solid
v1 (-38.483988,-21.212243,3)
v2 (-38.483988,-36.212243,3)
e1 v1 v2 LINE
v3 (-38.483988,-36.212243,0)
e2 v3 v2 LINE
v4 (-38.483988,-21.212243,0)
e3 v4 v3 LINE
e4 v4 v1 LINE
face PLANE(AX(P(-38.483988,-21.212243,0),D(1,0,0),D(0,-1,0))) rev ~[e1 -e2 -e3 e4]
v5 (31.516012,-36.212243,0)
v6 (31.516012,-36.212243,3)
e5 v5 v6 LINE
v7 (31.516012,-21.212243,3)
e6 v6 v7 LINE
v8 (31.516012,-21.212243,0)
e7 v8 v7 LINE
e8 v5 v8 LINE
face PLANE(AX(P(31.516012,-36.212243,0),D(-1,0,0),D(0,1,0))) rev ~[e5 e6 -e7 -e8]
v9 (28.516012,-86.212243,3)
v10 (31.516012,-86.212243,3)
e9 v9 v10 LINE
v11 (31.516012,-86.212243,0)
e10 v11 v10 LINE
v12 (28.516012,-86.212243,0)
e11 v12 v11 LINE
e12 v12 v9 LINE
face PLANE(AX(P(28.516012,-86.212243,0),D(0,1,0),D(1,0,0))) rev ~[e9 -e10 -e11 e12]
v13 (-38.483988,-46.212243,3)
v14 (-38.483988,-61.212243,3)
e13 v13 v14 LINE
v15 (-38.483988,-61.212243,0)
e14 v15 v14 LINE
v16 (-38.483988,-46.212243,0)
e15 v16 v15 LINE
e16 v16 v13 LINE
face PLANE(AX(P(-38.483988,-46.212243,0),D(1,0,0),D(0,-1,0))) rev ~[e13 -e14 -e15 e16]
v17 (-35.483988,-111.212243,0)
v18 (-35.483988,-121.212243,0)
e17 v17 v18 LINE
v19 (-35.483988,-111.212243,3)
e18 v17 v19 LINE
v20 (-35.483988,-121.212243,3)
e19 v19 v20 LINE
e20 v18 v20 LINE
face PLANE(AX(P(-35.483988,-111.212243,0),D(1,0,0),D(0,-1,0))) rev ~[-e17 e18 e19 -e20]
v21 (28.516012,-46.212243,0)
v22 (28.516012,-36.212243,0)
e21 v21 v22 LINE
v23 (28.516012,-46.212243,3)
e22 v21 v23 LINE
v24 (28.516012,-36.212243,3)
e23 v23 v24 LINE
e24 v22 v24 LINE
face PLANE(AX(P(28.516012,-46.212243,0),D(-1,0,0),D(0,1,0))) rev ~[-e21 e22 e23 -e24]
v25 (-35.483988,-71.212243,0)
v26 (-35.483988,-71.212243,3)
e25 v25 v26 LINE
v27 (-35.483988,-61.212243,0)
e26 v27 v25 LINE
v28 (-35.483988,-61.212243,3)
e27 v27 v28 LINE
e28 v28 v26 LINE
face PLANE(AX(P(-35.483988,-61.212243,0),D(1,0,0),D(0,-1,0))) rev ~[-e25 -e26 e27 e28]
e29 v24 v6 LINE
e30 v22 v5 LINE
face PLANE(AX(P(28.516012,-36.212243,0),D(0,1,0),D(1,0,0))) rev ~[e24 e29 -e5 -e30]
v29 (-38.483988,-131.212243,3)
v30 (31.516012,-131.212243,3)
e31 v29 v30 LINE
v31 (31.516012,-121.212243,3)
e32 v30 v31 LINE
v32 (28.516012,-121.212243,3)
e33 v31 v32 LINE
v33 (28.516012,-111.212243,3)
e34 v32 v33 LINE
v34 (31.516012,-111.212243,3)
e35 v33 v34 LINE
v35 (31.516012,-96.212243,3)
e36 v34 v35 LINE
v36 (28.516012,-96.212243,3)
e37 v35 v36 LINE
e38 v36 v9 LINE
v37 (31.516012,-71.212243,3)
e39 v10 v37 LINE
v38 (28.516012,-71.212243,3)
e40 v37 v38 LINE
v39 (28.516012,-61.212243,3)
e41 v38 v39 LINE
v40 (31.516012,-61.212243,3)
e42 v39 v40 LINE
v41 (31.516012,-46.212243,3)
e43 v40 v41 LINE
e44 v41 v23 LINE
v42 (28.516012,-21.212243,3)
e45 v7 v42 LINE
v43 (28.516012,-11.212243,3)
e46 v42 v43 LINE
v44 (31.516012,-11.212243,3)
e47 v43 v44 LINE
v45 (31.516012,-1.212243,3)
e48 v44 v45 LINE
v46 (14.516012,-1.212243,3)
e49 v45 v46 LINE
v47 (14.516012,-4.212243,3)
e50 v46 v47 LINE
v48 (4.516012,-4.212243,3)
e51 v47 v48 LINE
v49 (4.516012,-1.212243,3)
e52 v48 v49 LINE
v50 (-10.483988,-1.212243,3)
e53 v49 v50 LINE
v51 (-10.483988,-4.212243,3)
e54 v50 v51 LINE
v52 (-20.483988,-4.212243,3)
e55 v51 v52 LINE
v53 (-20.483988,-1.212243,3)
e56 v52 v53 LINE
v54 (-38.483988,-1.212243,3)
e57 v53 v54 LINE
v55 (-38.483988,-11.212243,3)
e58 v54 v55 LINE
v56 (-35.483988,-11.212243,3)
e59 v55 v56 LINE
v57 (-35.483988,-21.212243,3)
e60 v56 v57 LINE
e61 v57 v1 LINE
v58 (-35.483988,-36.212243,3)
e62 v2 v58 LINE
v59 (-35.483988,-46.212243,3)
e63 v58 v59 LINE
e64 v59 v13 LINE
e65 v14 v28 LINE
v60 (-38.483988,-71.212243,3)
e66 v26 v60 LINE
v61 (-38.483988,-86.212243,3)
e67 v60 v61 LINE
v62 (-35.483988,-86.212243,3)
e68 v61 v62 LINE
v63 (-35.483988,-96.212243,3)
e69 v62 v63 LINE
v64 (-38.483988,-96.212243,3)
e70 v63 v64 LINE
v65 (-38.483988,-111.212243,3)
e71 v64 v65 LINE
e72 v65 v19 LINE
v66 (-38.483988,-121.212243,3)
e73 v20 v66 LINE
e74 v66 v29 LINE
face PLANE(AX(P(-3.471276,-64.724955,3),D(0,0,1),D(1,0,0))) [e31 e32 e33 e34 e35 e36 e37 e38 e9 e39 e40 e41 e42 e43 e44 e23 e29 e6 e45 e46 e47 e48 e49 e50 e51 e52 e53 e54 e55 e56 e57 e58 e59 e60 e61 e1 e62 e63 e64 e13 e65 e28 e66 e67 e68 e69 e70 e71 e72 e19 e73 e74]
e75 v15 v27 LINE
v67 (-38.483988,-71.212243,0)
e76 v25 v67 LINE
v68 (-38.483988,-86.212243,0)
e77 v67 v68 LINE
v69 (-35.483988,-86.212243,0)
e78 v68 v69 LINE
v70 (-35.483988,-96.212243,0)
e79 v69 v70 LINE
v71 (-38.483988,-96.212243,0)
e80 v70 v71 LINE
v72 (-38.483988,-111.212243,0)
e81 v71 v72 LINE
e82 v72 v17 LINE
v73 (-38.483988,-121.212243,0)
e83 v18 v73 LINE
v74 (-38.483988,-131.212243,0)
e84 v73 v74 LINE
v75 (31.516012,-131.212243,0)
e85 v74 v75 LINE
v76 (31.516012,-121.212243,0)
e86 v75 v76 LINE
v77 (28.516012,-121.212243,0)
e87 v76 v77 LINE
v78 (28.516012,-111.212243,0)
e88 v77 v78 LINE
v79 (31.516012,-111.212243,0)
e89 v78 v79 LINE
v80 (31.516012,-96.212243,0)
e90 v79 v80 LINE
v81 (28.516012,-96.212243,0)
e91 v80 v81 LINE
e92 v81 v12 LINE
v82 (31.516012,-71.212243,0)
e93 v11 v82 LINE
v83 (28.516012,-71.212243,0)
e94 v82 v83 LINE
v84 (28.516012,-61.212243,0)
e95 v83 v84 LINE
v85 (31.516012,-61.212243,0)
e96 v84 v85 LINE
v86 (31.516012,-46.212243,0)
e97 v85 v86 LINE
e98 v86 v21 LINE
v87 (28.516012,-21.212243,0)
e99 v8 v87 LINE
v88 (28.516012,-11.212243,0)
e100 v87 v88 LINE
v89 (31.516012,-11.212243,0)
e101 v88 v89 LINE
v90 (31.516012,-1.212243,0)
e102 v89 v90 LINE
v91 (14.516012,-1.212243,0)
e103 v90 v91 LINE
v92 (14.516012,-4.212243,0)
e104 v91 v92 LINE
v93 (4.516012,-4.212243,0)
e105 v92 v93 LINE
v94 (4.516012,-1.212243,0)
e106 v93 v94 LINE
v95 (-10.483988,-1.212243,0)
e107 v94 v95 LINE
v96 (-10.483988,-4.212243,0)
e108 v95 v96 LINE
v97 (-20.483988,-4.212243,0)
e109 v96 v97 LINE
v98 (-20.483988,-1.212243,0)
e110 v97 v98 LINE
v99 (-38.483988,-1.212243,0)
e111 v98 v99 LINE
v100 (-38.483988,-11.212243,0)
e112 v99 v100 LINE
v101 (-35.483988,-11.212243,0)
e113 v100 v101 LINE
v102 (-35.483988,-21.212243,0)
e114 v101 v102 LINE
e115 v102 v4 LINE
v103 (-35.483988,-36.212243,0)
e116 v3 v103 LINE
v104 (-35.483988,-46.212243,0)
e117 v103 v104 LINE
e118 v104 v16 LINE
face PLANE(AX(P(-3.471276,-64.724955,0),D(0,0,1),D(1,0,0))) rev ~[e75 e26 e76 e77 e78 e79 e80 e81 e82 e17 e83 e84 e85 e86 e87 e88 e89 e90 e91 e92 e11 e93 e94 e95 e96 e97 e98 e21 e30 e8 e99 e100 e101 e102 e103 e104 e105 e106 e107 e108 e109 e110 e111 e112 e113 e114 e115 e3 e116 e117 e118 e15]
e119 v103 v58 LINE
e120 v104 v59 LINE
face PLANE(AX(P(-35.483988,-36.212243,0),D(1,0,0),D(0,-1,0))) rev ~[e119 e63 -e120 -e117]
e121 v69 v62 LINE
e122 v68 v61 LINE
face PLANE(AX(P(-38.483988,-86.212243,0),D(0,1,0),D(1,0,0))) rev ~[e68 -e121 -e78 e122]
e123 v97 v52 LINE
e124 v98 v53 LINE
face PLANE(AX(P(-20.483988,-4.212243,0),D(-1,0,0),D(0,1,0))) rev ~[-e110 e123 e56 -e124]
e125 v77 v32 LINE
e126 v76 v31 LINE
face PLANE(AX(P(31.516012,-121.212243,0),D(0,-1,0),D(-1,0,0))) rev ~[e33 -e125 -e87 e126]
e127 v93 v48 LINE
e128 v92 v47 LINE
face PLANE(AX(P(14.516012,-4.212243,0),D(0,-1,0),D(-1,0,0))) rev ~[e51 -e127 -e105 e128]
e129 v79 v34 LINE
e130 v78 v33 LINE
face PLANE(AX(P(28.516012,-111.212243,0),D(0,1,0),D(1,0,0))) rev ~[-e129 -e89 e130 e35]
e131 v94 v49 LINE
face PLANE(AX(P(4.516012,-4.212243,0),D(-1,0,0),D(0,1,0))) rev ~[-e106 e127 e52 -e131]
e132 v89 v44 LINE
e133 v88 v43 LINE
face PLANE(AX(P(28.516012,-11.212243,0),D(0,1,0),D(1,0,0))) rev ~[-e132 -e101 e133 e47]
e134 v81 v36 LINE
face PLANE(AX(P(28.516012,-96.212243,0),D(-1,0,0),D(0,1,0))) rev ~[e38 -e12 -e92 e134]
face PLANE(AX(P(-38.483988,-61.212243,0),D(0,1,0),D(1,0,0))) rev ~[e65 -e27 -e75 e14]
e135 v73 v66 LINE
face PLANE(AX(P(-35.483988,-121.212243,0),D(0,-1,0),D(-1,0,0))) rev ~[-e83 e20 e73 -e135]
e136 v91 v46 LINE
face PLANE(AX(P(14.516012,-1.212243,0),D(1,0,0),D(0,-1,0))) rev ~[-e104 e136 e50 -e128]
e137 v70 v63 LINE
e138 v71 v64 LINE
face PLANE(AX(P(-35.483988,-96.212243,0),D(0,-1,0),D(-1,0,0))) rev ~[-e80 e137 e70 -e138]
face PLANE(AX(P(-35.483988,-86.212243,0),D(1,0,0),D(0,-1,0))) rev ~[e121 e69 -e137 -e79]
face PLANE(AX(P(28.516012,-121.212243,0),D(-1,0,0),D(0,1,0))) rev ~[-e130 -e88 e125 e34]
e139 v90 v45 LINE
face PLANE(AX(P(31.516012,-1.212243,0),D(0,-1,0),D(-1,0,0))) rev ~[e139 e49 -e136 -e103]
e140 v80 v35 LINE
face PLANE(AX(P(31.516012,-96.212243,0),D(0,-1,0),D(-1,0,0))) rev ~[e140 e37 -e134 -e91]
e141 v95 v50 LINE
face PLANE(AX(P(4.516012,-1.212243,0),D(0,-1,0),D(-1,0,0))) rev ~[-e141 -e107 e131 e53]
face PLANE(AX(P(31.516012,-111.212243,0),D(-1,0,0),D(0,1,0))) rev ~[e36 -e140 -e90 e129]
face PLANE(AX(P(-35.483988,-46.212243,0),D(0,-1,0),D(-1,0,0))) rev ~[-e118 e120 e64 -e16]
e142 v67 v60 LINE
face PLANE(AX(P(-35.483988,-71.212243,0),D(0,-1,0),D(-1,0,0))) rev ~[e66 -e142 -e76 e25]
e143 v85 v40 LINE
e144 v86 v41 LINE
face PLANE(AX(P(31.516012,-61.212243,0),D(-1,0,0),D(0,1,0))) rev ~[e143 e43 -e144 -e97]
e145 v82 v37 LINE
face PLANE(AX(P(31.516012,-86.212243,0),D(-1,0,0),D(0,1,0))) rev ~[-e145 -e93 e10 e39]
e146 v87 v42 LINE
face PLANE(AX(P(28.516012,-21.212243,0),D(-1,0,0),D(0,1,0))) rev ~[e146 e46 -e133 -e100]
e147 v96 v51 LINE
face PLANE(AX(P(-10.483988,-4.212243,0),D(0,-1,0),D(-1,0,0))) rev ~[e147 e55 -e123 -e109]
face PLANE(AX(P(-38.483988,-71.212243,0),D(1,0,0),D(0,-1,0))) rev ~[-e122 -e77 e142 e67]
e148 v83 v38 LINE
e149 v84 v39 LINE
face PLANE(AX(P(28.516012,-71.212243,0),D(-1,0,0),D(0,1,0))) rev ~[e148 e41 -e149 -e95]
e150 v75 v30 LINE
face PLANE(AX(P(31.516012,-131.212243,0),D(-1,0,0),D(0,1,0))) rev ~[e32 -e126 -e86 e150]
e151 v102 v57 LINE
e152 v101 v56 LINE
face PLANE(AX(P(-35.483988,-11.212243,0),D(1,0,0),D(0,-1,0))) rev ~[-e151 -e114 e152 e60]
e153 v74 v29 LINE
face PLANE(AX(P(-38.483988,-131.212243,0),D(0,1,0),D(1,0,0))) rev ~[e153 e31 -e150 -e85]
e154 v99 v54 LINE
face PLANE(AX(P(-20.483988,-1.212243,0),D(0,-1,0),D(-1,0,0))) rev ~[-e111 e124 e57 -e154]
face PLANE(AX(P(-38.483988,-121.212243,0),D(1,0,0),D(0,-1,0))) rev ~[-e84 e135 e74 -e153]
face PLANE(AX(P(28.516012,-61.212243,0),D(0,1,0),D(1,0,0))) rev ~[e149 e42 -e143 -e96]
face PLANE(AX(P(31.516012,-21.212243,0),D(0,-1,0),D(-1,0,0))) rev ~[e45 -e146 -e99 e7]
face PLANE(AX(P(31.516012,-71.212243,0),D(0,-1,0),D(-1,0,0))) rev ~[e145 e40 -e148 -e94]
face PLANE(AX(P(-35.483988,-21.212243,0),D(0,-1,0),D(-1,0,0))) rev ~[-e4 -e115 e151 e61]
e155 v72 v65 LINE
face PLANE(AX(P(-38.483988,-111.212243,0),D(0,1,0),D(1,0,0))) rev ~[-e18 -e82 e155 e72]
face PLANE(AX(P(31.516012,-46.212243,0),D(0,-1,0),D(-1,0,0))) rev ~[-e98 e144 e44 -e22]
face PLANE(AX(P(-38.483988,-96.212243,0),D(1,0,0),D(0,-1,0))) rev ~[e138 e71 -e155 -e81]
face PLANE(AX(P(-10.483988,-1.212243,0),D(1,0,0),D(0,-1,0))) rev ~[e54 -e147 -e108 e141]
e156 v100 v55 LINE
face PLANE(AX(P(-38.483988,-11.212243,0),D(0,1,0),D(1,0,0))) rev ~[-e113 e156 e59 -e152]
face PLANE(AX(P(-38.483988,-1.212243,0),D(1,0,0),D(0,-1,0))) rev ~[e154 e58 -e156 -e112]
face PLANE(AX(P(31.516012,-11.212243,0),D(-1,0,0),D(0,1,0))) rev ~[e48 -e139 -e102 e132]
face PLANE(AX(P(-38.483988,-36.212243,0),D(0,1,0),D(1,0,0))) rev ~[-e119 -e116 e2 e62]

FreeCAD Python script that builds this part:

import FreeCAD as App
import Part
import Sketcher

V = App.Vector


def add_polygon(sketch, points):
    """Adds a closed chain of lines whose ends are joined by coincident constraints."""
    first, n = sketch.GeometryCount, len(points)
    for a, b in zip(points, points[1:] + points[:1]):
        sketch.addGeometry(Part.LineSegment(App.Vector(*a, 0), App.Vector(*b, 0)), False)
    for i in range(n):
        sketch.addConstraint(Sketcher.Constraint("Coincident", first + i, 2, first + (i + 1) % n, 1))

doc = App.newDocument("Part")
body = doc.addObject("PartDesign::Body", "Body")

sketch1 = body.newObject("Sketcher::SketchObject", "Sketch")
sketch1.AttachmentSupport = (doc.getObject("XY_Plane"), [""])
sketch1.MapMode = "FlatFace"
add_polygon(sketch1, [(31.5, -1.2), (14.5, -1.2), (14.5, -4.2), (4.5, -4.2), (4.5, -1.2), (-10.5, -1.2), (-10.5, -4.2), (-20.5, -4.2), (-20.5, -1.2), (-38.5, -1.2), (-38.5, -11.2), (-35.5, -11.2), (-35.5, -21.2), (-38.5, -21.2), (-38.5, -36.2), (-35.5, -36.2), (-35.5, -46.2), (-38.5, -46.2), (-38.5, -61.2), (-35.5, -61.2), (-35.5, -71.2), (-38.5, -71.2), (-38.5, -86.2), (-35.5, -86.2), (-35.5, -96.2), (-38.5, -96.2), (-38.5, -111.2), (-35.5, -111.2), (-35.5, -121.2), (-38.5, -121.2), (-38.5, -131.2), (31.5, -131.2), (31.5, -121.2), (28.5, -121.2), (28.5, -111.2), (31.5, -111.2), (31.5, -96.2), (28.5, -96.2), (28.5, -86.2), (31.5, -86.2), (31.5, -71.2), (28.5, -71.2), (28.5, -61.2), (31.5, -61.2), (31.5, -46.2), (28.5, -46.2), (28.5, -36.2), (31.5, -36.2), (31.5, -21.2), (28.5, -21.2), (28.5, -11.2), (31.5, -11.2)])
sketch1.addConstraint([
    Sketcher.Constraint("Horizontal", 0),
    Sketcher.Constraint("Vertical", 1),
    Sketcher.Constraint("Horizontal", 2),
    Sketcher.Constraint("Vertical", 3),
    Sketcher.Constraint("Horizontal", 4),
    Sketcher.Constraint("Vertical", 5),
    Sketcher.Constraint("Horizontal", 6),
    Sketcher.Constraint("Vertical", 7),
    Sketcher.Constraint("Horizontal", 8),
    Sketcher.Constraint("Vertical", 9),
    Sketcher.Constraint("Horizontal", 10),
    Sketcher.Constraint("Vertical", 11),
    Sketcher.Constraint("Horizontal", 12),
    Sketcher.Constraint("Vertical", 13),
    Sketcher.Constraint("Horizontal", 14),
    Sketcher.Constraint("Vertical", 15),
    Sketcher.Constraint("Horizontal", 16),
    Sketcher.Constraint("Vertical", 17),
    Sketcher.Constraint("Horizontal", 18),
    Sketcher.Constraint("Vertical", 19),
    Sketcher.Constraint("Horizontal", 20),
    Sketcher.Constraint("Vertical", 21),
    Sketcher.Constraint("Horizontal", 22),
    Sketcher.Constraint("Vertical", 23),
    Sketcher.Constraint("Horizontal", 24),
    Sketcher.Constraint("Vertical", 25),
    Sketcher.Constraint("Horizontal", 26),
    Sketcher.Constraint("Vertical", 27),
    Sketcher.Constraint("Horizontal", 28),
    Sketcher.Constraint("Vertical", 29),
    Sketcher.Constraint("Horizontal", 30),
    Sketcher.Constraint("Vertical", 31),
    Sketcher.Constraint("Horizontal", 32),
    Sketcher.Constraint("Vertical", 33),
    Sketcher.Constraint("Horizontal", 34),
    Sketcher.Constraint("Vertical", 35),
    Sketcher.Constraint("Horizontal", 36),
    Sketcher.Constraint("Vertical", 37),
    Sketcher.Constraint("Horizontal", 38),
    Sketcher.Constraint("Vertical", 39),
    Sketcher.Constraint("Horizontal", 40),
    Sketcher.Constraint("Vertical", 41),
    Sketcher.Constraint("Horizontal", 42),
    Sketcher.Constraint("Vertical", 43),
    Sketcher.Constraint("Horizontal", 44),
    Sketcher.Constraint("Vertical", 45),
    Sketcher.Constraint("Horizontal", 46),
    Sketcher.Constraint("Vertical", 47),
    Sketcher.Constraint("Horizontal", 48),
    Sketcher.Constraint("Vertical", 49),
    Sketcher.Constraint("Horizontal", 50),
    Sketcher.Constraint("Vertical", 51),
    Sketcher.Constraint("Horizontal", 0, 2, 3, 2),
    Sketcher.Constraint("Horizontal", 2, 2, 5, 2),
    Sketcher.Constraint("Horizontal", 4, 2, 7, 2),
    Sketcher.Constraint("Horizontal", 28, 2, 31, 2),
    Sketcher.Constraint("Horizontal", 26, 2, 33, 2),
    Sketcher.Constraint("Horizontal", 24, 2, 35, 2),
    Sketcher.Constraint("Horizontal", 22, 2, 37, 2),
    Sketcher.Constraint("Horizontal", 20, 2, 39, 2),
    Sketcher.Constraint("Horizontal", 18, 2, 41, 2),
    Sketcher.Constraint("Horizontal", 16, 2, 43, 2),
    Sketcher.Constraint("Horizontal", 14, 2, 45, 2),
    Sketcher.Constraint("Horizontal", 12, 2, 47, 2),
    Sketcher.Constraint("Horizontal", 10, 2, 49, 2),
    Sketcher.Constraint("Vertical", 9, 2, 12, 2),
    Sketcher.Constraint("Vertical", 11, 2, 14, 2),
    Sketcher.Constraint("Vertical", 13, 2, 16, 2),
    Sketcher.Constraint("Vertical", 15, 2, 18, 2),
    Sketcher.Constraint("Vertical", 17, 2, 20, 2),
    Sketcher.Constraint("Vertical", 19, 2, 22, 2),
    Sketcher.Constraint("Vertical", 21, 2, 24, 2),
    Sketcher.Constraint("Vertical", 23, 2, 26, 2),
    Sketcher.Constraint("Vertical", 25, 2, 28, 2),
    Sketcher.Constraint("Vertical", 31, 2, 34, 2),
    Sketcher.Constraint("Vertical", 33, 2, 36, 2),
    Sketcher.Constraint("Vertical", 35, 2, 38, 2),
    Sketcher.Constraint("Vertical", 37, 2, 40, 2),
    Sketcher.Constraint("Vertical", 39, 2, 42, 2),
    Sketcher.Constraint("Vertical", 41, 2, 44, 2),
    Sketcher.Constraint("Vertical", 43, 2, 46, 2),
    Sketcher.Constraint("Vertical", 45, 2, 48, 2),
    Sketcher.Constraint("Vertical", 47, 2, 50, 2),
    Sketcher.Constraint("Equal", 2, 6),
    Sketcher.Constraint("Equal", 28, 32),
    Sketcher.Constraint("Equal", 50, 1),
    Sketcher.Constraint("Equal", 6, 9),
    Sketcher.Constraint("Equal", 9, 11),
    Sketcher.Constraint("Equal", 4, 13),
    Sketcher.Constraint("Equal", 11, 15),
    Sketcher.Constraint("Equal", 13, 17),
    Sketcher.Constraint("Equal", 15, 19),
    Sketcher.Constraint("Equal", 17, 21),
    Sketcher.Constraint("Equal", 19, 23),
    Sketcher.Constraint("Equal", 21, 25),
    Sketcher.Constraint("Equal", 23, 27),
    Sketcher.Constraint("Equal", 27, 29),
    Sketcher.Constraint("DistanceX", 0, 2, 0, 1, 17.0),
    Sketcher.Constraint("DistanceX", 2, 2, 2, 1, 10.0),
    Sketcher.Constraint("DistanceX", 4, 2, 4, 1, 15.0),
    Sketcher.Constraint("DistanceX", 8, 2, 8, 1, 18.0),
    Sketcher.Constraint("DistanceX", 10, 1, 10, 2, 3.0),
    Sketcher.Constraint("DistanceX", -1, 1, 0, 2, 14.516012),
    Sketcher.Constraint("DistanceY", 0, 2, -1, 1, 1.212243),
])
pad1 = body.newObject("PartDesign::Pad", "Pad")
pad1.Profile = sketch1
pad1.Length = 3

doc.recompute()
